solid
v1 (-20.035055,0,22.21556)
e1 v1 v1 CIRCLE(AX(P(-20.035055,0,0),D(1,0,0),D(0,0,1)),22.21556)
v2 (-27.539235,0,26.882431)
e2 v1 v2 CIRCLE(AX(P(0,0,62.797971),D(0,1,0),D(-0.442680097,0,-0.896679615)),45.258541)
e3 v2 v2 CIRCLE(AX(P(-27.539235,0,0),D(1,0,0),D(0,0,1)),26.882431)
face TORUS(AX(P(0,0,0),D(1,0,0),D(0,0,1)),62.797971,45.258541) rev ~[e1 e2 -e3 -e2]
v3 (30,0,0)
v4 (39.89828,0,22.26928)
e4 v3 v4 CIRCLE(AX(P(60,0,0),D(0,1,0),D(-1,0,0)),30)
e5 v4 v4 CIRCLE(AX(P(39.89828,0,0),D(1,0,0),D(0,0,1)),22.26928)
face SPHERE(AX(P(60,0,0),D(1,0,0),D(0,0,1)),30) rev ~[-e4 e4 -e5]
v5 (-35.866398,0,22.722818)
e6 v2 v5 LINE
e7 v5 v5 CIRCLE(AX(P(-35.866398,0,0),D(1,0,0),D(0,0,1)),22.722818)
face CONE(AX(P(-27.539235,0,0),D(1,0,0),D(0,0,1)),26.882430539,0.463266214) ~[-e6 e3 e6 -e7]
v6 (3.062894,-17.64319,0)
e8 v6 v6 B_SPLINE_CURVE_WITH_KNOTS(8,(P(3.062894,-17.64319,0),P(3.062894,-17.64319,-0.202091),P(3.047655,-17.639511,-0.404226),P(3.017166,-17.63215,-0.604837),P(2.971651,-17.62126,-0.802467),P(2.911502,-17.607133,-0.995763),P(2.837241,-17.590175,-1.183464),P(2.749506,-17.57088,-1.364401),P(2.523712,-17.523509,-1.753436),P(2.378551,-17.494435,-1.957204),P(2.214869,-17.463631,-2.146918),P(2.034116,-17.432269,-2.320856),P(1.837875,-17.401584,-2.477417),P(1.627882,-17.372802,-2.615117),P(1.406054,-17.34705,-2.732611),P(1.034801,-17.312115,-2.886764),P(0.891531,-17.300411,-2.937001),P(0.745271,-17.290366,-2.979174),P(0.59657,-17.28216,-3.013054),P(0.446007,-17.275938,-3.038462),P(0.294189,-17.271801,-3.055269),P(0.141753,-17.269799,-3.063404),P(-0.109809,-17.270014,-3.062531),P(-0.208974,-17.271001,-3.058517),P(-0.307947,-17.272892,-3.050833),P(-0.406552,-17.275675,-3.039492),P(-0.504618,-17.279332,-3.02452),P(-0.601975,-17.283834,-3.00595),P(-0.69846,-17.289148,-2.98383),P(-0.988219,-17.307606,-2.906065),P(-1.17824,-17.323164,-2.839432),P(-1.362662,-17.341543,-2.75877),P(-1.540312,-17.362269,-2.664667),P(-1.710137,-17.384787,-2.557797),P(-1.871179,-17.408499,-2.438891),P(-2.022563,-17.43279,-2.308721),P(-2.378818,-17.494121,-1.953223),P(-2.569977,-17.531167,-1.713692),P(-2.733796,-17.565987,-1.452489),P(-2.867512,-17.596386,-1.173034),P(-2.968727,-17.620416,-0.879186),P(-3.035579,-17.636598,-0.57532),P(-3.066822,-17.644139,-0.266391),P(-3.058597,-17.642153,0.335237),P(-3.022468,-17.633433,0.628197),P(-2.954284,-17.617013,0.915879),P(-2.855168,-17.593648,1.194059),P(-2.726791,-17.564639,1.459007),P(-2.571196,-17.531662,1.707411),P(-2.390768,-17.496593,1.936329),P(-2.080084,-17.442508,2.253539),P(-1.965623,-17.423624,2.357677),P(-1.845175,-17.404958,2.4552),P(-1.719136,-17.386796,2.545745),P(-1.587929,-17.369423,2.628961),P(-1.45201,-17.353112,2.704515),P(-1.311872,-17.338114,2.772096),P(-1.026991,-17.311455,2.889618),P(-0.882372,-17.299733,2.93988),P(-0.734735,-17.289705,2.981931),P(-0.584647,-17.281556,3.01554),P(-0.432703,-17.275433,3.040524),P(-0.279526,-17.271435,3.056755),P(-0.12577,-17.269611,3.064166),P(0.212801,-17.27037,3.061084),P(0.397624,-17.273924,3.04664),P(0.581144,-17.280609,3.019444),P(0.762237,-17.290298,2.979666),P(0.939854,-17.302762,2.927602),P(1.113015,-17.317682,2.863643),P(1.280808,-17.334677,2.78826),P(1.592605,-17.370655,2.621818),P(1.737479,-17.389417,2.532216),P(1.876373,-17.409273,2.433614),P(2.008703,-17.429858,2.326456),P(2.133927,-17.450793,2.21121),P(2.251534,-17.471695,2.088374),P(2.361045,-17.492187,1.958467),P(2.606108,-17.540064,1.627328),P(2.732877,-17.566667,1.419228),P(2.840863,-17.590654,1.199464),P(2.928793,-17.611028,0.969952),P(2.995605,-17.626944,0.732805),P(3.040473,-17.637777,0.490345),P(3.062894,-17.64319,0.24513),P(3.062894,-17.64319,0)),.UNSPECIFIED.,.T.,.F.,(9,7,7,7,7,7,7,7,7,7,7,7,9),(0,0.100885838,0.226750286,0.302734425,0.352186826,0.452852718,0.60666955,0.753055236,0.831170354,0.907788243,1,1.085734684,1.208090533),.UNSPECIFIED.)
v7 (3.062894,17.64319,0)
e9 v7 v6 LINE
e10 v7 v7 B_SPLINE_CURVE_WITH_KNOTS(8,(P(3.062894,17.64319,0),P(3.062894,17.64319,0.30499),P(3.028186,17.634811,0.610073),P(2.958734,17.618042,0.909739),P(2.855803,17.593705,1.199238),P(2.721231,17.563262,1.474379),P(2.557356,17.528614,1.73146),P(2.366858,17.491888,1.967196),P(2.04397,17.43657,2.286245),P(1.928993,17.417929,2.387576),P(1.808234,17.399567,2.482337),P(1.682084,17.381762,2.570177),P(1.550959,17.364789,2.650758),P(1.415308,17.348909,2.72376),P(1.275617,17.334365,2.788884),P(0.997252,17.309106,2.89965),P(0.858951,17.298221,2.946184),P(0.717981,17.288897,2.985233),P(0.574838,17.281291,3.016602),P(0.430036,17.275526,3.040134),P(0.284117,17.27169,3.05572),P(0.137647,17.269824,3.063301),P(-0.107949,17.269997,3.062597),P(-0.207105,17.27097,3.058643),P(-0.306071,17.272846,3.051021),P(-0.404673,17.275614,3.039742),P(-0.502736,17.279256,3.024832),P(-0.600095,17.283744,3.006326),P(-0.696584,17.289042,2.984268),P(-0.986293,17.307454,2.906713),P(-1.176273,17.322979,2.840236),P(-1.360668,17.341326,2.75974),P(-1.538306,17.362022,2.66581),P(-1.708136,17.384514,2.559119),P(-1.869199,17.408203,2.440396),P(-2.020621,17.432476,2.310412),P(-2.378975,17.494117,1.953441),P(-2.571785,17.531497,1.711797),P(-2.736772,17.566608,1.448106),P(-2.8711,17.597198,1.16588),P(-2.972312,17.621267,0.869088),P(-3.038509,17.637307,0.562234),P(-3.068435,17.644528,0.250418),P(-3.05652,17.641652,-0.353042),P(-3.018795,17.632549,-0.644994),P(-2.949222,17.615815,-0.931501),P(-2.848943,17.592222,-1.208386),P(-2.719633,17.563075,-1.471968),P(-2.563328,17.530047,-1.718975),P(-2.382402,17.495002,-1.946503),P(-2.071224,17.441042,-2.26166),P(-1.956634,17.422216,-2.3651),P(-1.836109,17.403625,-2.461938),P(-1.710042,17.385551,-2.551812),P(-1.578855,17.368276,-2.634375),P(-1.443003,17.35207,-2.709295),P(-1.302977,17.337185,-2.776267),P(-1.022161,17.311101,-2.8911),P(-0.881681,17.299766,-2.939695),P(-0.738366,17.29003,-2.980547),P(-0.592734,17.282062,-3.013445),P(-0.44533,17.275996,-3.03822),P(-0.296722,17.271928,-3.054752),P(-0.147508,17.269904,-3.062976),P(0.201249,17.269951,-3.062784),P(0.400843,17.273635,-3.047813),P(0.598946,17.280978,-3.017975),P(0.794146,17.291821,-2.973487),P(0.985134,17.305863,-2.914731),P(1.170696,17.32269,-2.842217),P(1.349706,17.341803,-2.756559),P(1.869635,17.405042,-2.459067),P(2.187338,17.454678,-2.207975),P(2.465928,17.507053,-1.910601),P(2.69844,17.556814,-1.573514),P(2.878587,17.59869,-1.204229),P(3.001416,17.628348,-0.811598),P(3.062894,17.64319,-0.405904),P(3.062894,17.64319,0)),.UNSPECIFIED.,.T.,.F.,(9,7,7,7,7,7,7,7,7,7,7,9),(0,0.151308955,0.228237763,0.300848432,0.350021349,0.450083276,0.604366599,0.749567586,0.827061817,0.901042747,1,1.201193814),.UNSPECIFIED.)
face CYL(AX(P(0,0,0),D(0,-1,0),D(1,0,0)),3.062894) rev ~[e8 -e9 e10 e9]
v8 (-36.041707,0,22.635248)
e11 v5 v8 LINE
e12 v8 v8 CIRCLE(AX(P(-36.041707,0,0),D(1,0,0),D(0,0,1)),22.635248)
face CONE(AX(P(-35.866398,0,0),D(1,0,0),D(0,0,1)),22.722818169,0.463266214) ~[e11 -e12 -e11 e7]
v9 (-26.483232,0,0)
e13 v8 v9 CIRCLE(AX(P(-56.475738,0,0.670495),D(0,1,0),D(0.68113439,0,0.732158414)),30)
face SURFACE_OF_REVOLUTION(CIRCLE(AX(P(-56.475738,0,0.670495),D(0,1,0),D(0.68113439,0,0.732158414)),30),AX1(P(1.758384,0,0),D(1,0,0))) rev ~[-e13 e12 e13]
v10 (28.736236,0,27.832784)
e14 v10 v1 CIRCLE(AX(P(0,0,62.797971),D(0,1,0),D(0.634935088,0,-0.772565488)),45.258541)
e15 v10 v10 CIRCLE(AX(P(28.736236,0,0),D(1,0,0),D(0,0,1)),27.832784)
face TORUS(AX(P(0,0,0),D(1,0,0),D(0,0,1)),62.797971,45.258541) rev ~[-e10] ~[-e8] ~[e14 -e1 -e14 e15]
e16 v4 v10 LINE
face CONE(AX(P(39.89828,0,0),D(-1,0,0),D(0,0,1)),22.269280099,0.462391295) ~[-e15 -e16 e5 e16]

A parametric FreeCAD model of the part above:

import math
import FreeCAD as App
import Part
import Sketcher
from FreeCAD import Vector

doc = App.newDocument("Part")
body = doc.addObject("PartDesign::Body", "Body")

sketch1 = body.newObject("Sketcher::SketchObject", "Sketch")
sketch1.AttachmentSupport = (doc.getObject("XZ_Plane"), [""])
sketch1.MapMode = "FlatFace"
sketch1.addGeometry(Part.ArcOfCircle(Part.Circle(Vector(-56.48, 0.67, 0), Vector(0, 0, 1), 30), math.radians(-1), math.radians(47)), False)
sketch1.addGeometry(Part.LineSegment(Vector(-26.48, 0, 0), Vector(30, 0, 0)), False)
sketch1.addGeometry(Part.ArcOfCircle(Part.Circle(Vector(60, 0, 0), Vector(0, 0, 1), 30), math.radians(132), math.radians(180)), False)
sketch1.addGeometry(Part.LineSegment(Vector(39.9, 22.27, 0), Vector(28.74, 27.83, 0)), False)
sketch1.addGeometry(Part.ArcOfCircle(Part.Circle(Vector(0, 62.8, 0), Vector(0, 0, 1), 45.26), math.radians(-116), math.radians(-51)), False)
sketch1.addGeometry(Part.ArcOfCircle(Part.Circle(Vector(0, 62.8, 0), Vector(0, 0, 1), 45.26), math.radians(-127.48), math.radians(-116.28)), False)
sketch1.addGeometry(Part.LineSegment(Vector(-27.54, 26.88, 0), Vector(-35.87, 22.72, 0)), False)
sketch1.addGeometry(Part.LineSegment(Vector(-35.87, 22.72, 0), Vector(-36.04, 22.64, 0)), False)
sketch1.addConstraint(Sketcher.Constraint("Coincident", 0, 1, 1, 1))
sketch1.addConstraint(Sketcher.Constraint("Coincident", 1, 2, 2, 2))
sketch1.addConstraint(Sketcher.Constraint("Coincident", 2, 1, 3, 1))
sketch1.addConstraint(Sketcher.Constraint("Coincident", 3, 2, 4, 2))
sketch1.addConstraint(Sketcher.Constraint("Tangent", 4, 1, 5, 2))
sketch1.addConstraint(Sketcher.Constraint("Coincident", 5, 1, 6, 1))
sketch1.addConstraint(Sketcher.Constraint("Coincident", 6, 2, 7, 1))
sketch1.addConstraint(Sketcher.Constraint("Coincident", 7, 2, 0, 2))
sketch1.addConstraint(Sketcher.Constraint("Horizontal", 1))
sketch1.addConstraint(Sketcher.Constraint("Equal", 0, 2))
sketch1.addConstraint(Sketcher.Constraint("Equal", 4, 5))
sketch1.addConstraint(Sketcher.Constraint("PointOnObject", 2, 3, -1))
sketch1.addConstraint(Sketcher.Constraint("PointOnObject", 4, 3, -2))
sketch1.addConstraint(Sketcher.Constraint("PointOnObject", 0, 1, -1))
sketch1.addConstraint(Sketcher.Constraint("Parallel", 6, 7))
sketch1.addConstraint(Sketcher.Constraint("Radius", 0, 30.0))
sketch1.addConstraint(Sketcher.Constraint("DistanceX", -1, 1, 2, 3, 60.0))
sketch1.addConstraint(Sketcher.Constraint("Radius", 4, 45.258541))
sketch1.addConstraint(Sketcher.Constraint("DistanceX", 6, 2, -1, 1, 35.866398))
sketch1.addConstraint(Sketcher.Constraint("Distance", 3, 12.47172))
sketch1.addConstraint(Sketcher.Constraint("DistanceX", 1, 1, 1, 2, 56.483232))
sketch1.addConstraint(Sketcher.Constraint("DistanceX", 0, 3, -1, 1, 56.475738))
sketch1.addConstraint(Sketcher.Constraint("DistanceY", -1, 1, 4, 3, 62.797971))
sketch1.addConstraint(Sketcher.Constraint("DistanceX", -1, 1, 2, 1, 39.89828))
sketch1.addConstraint(Sketcher.Constraint("DistanceY", -1, 1, 4, 1, 22.21556))
sketch1.addConstraint(Sketcher.Constraint("DistanceY", -1, 1, 5, 1, 26.882431))
sketch1.addConstraint(Sketcher.Constraint("DistanceY", -1, 1, 6, 2, 22.722818))
revolution = body.newObject("PartDesign::Revolution", "Revolution")
revolution.Profile = sketch1
revolution.ReferenceAxis = (sketch1, ["H_Axis"])
revolution.Angle = 360

sketch2 = body.newObject("Sketcher::SketchObject", "Sketch001")
sketch2.AttachmentSupport = (doc.getObject("XZ_Plane"), [""])
sketch2.MapMode = "FlatFace"
sketch2.addGeometry(Part.Circle(Vector(0, 0, 0), Vector(0, 0, 1), 3.1), False)
sketch2.addConstraint(Sketcher.Constraint("Coincident", 0, 3, -1, 1))
sketch2.addConstraint(Sketcher.Constraint("Diameter", 0, 6.125788))
pocket1 = body.newObject("PartDesign::Pocket", "Pocket")
pocket1.Profile = sketch2
pocket1.Length = 37.8
pocket1.Midplane = True

doc.recompute()
